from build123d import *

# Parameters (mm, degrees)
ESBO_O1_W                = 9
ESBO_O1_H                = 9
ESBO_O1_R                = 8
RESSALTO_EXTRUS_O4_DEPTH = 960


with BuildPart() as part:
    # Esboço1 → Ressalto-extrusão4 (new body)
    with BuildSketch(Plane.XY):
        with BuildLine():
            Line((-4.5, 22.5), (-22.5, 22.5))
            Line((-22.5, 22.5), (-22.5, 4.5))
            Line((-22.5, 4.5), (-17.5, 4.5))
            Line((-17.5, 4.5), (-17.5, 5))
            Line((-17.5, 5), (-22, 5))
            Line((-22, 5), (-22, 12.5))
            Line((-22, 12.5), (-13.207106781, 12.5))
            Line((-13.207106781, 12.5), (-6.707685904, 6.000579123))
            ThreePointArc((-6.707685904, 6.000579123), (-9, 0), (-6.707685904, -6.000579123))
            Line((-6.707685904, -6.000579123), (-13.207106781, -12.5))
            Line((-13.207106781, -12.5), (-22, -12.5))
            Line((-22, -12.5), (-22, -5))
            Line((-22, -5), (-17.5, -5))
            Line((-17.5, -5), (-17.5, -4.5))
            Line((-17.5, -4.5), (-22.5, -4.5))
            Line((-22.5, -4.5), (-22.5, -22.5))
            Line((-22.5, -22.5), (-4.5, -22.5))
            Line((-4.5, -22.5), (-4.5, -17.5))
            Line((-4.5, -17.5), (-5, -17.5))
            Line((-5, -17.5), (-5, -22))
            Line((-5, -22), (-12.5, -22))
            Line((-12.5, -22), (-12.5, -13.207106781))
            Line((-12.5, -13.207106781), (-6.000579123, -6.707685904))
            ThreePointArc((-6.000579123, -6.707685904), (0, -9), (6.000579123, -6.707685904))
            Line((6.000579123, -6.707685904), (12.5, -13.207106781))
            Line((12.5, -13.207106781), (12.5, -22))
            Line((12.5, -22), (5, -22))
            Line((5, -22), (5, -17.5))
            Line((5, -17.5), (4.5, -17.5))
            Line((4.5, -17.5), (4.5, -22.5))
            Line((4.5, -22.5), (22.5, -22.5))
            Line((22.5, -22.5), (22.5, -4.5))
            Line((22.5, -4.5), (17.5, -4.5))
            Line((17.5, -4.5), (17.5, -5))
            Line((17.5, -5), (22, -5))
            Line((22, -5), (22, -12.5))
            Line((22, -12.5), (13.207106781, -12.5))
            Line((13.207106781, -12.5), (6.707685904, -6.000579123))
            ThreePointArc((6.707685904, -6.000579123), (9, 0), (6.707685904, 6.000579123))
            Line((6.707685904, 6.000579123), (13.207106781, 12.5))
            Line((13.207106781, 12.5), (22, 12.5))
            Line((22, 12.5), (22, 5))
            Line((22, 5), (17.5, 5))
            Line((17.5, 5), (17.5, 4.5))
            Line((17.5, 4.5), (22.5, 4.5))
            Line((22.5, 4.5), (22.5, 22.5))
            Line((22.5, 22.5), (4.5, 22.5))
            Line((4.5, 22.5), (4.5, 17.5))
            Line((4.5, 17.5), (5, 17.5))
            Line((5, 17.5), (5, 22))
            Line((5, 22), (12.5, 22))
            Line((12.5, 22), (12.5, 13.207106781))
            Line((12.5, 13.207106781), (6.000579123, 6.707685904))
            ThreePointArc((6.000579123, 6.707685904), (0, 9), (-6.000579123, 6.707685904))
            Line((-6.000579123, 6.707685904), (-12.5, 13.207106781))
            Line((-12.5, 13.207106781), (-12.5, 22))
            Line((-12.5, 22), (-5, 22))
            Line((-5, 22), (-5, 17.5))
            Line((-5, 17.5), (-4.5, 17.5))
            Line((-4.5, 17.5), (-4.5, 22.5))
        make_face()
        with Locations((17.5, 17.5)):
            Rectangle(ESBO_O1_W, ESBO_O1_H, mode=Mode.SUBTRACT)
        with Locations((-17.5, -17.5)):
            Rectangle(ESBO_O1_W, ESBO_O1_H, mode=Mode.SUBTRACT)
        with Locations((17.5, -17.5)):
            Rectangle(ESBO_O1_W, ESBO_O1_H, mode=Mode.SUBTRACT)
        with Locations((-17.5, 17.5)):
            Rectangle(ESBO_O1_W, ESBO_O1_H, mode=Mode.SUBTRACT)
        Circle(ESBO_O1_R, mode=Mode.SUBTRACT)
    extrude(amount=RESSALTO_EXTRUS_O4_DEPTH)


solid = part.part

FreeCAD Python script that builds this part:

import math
import FreeCAD as App
import Part
import Sketcher

V = App.Vector
Q = App.Units.Quantity


def add_polygon(sketch, points):
    """Adds a closed chain of lines whose ends are joined by coincident constraints."""
    first, n = sketch.GeometryCount, len(points)
    for a, b in zip(points, points[1:] + points[:1]):
        sketch.addGeometry(Part.LineSegment(App.Vector(*a, 0), App.Vector(*b, 0)), False)
    for i in range(n):
        sketch.addConstraint(Sketcher.Constraint("Coincident", first + i, 2, first + (i + 1) % n, 1))

doc = App.newDocument("Part")
params = doc.addObject("Spreadsheet::Sheet", "Params")
for row, (alias, value) in enumerate([
    ("sketch1_diameter", "16 mm"),
    ("sketch1_radius", "9 mm"),
    ("sketch1_width", "18 mm"),
    ("sketch1_width2", "5 mm"),
    ("sketch1_width3", "9 mm"),
    ("pad1_length", "960 mm"),
], start=1):
    params.set(f"A{row}", alias)
    params.set(f"B{row}", "=" + value)
    params.setAlias(f"B{row}", alias)

body = doc.addObject("PartDesign::Body", "Body")

# Sketch on XY plane
sketch1 = body.newObject("Sketcher::SketchObject", "Sketch")
sketch1.AttachmentSupport = (doc.getObject("XY_Plane"), [""])
sketch1.MapMode = "FlatFace"
sketch1.addGeometry(Part.LineSegment(V(-4.5, 22.5, 0), V(-22.5, 22.5, 0)), False)  # 0
sketch1.addGeometry(Part.LineSegment(V(-22.5, 22.5, 0), V(-22.5, 4.5, 0)), False)  # 1
sketch1.addGeometry(Part.LineSegment(V(-22.5, 4.5, 0), V(-17.5, 4.5, 0)), False)  # 2
sketch1.addGeometry(Part.LineSegment(V(-17.5, 4.5, 0), V(-17.5, 5, 0)), False)  # 3
sketch1.addGeometry(Part.LineSegment(V(-17.5, 5, 0), V(-22, 5, 0)), False)  # 4
sketch1.addGeometry(Part.LineSegment(V(-22, 5, 0), V(-22, 12.5, 0)), False)  # 5
sketch1.addGeometry(Part.LineSegment(V(-22, 12.5, 0), V(-13.207107, 12.5, 0)), False)  # 6
sketch1.addGeometry(Part.LineSegment(V(-13.207107, 12.5, 0), V(-6.707686, 6.000579, 0)), False)  # 7
sketch1.addGeometry(Part.ArcOfCircle(Part.Circle(V(0, 0, 0), V(0, 0, 1), 9), math.radians(138.184739), math.radians(221.815261)), False)  # 8
sketch1.addGeometry(Part.LineSegment(V(-6.707686, -6.000579, 0), V(-13.207107, -12.5, 0)), False)  # 9
sketch1.addGeometry(Part.LineSegment(V(-13.207107, -12.5, 0), V(-22, -12.5, 0)), False)  # 10
sketch1.addGeometry(Part.LineSegment(V(-22, -12.5, 0), V(-22, -5, 0)), False)  # 11
sketch1.addGeometry(Part.LineSegment(V(-22, -5, 0), V(-17.5, -5, 0)), False)  # 12
sketch1.addGeometry(Part.LineSegment(V(-17.5, -5, 0), V(-17.5, -4.5, 0)), False)  # 13
sketch1.addGeometry(Part.LineSegment(V(-17.5, -4.5, 0), V(-22.5, -4.5, 0)), False)  # 14
sketch1.addGeometry(Part.LineSegment(V(-22.5, -4.5, 0), V(-22.5, -22.5, 0)), False)  # 15
sketch1.addGeometry(Part.LineSegment(V(-22.5, -22.5, 0), V(-4.5, -22.5, 0)), False)  # 16
sketch1.addGeometry(Part.LineSegment(V(-4.5, -22.5, 0), V(-4.5, -17.5, 0)), False)  # 17
sketch1.addGeometry(Part.LineSegment(V(-4.5, -17.5, 0), V(-5, -17.5, 0)), False)  # 18
sketch1.addGeometry(Part.LineSegment(V(-5, -17.5, 0), V(-5, -22, 0)), False)  # 19
sketch1.addGeometry(Part.LineSegment(V(-5, -22, 0), V(-12.5, -22, 0)), False)  # 20
sketch1.addGeometry(Part.LineSegment(V(-12.5, -22, 0), V(-12.5, -13.207107, 0)), False)  # 21
sketch1.addGeometry(Part.LineSegment(V(-12.5, -13.207107, 0), V(-6.000579, -6.707686, 0)), False)  # 22
sketch1.addGeometry(Part.ArcOfCircle(Part.Circle(V(0, 0, 0), V(0, 0, 1), 9), math.radians(-131.815261), math.radians(-48.184739)), False)  # 23
sketch1.addGeometry(Part.LineSegment(V(6.000579, -6.707686, 0), V(12.5, -13.207107, 0)), False)  # 24
sketch1.addGeometry(Part.LineSegment(V(12.5, -13.207107, 0), V(12.5, -22, 0)), False)  # 25
sketch1.addGeometry(Part.LineSegment(V(12.5, -22, 0), V(5, -22, 0)), False)  # 26
sketch1.addGeometry(Part.LineSegment(V(5, -22, 0), V(5, -17.5, 0)), False)  # 27
sketch1.addGeometry(Part.LineSegment(V(5, -17.5, 0), V(4.5, -17.5, 0)), False)  # 28
sketch1.addGeometry(Part.LineSegment(V(4.5, -17.5, 0), V(4.5, -22.5, 0)), False)  # 29
sketch1.addGeometry(Part.LineSegment(V(4.5, -22.5, 0), V(22.5, -22.5, 0)), False)  # 30
sketch1.addGeometry(Part.LineSegment(V(22.5, -22.5, 0), V(22.5, -4.5, 0)), False)  # 31
sketch1.addGeometry(Part.LineSegment(V(22.5, -4.5, 0), V(17.5, -4.5, 0)), False)  # 32
sketch1.addGeometry(Part.LineSegment(V(17.5, -4.5, 0), V(17.5, -5, 0)), False)  # 33
sketch1.addGeometry(Part.LineSegment(V(17.5, -5, 0), V(22, -5, 0)), False)  # 34
sketch1.addGeometry(Part.LineSegment(V(22, -5, 0), V(22, -12.5, 0)), False)  # 35
sketch1.addGeometry(Part.LineSegment(V(22, -12.5, 0), V(13.207107, -12.5, 0)), False)  # 36
sketch1.addGeometry(Part.LineSegment(V(13.207107, -12.5, 0), V(6.707686, -6.000579, 0)), False)  # 37
sketch1.addGeometry(Part.ArcOfCircle(Part.Circle(V(0, 0, 0), V(0, 0, 1), 9), math.radians(-41.815261), math.radians(41.815261)), False)  # 38
sketch1.addGeometry(Part.LineSegment(V(6.707686, 6.000579, 0), V(13.207107, 12.5, 0)), False)  # 39
sketch1.addGeometry(Part.LineSegment(V(13.207107, 12.5, 0), V(22, 12.5, 0)), False)  # 40
sketch1.addGeometry(Part.LineSegment(V(22, 12.5, 0), V(22, 5, 0)), False)  # 41
sketch1.addGeometry(Part.LineSegment(V(22, 5, 0), V(17.5, 5, 0)), False)  # 42
sketch1.addGeometry(Part.LineSegment(V(17.5, 5, 0), V(17.5, 4.5, 0)), False)  # 43
sketch1.addGeometry(Part.LineSegment(V(17.5, 4.5, 0), V(22.5, 4.5, 0)), False)  # 44
sketch1.addGeometry(Part.LineSegment(V(22.5, 4.5, 0), V(22.5, 22.5, 0)), False)  # 45
sketch1.addGeometry(Part.LineSegment(V(22.5, 22.5, 0), V(4.5, 22.5, 0)), False)  # 46
sketch1.addGeometry(Part.LineSegment(V(4.5, 22.5, 0), V(4.5, 17.5, 0)), False)  # 47
sketch1.addGeometry(Part.LineSegment(V(4.5, 17.5, 0), V(5, 17.5, 0)), False)  # 48
sketch1.addGeometry(Part.LineSegment(V(5, 17.5, 0), V(5, 22, 0)), False)  # 49
sketch1.addGeometry(Part.LineSegment(V(5, 22, 0), V(12.5, 22, 0)), False)  # 50
sketch1.addGeometry(Part.LineSegment(V(12.5, 22, 0), V(12.5, 13.207107, 0)), False)  # 51
sketch1.addGeometry(Part.LineSegment(V(12.5, 13.207107, 0), V(6.000579, 6.707686, 0)), False)  # 52
sketch1.addGeometry(Part.ArcOfCircle(Part.Circle(V(0, 0, 0), V(0, 0, 1), 9), math.radians(48.184739), math.radians(131.815261)), False)  # 53
sketch1.addGeometry(Part.LineSegment(V(-6.000579, 6.707686, 0), V(-12.5, 13.207107, 0)), False)  # 54
sketch1.addGeometry(Part.LineSegment(V(-12.5, 13.207107, 0), V(-12.5, 22, 0)), False)  # 55
sketch1.addGeometry(Part.LineSegment(V(-12.5, 22, 0), V(-5, 22, 0)), False)  # 56
sketch1.addGeometry(Part.LineSegment(V(-5, 22, 0), V(-5, 17.5, 0)), False)  # 57
sketch1.addGeometry(Part.LineSegment(V(-5, 17.5, 0), V(-4.5, 17.5, 0)), False)  # 58
sketch1.addGeometry(Part.LineSegment(V(-4.5, 17.5, 0), V(-4.5, 22.5, 0)), False)  # 59
add_polygon(sketch1, [(-13, -22), (-22, -22), (-22, -13), (-13, -13)])  # lines 60-63
add_polygon(sketch1, [(22, -22), (13, -22), (13, -13), (22, -13)])  # lines 64-67
add_polygon(sketch1, [(-13, 13), (-22, 13), (-22, 22), (-13, 22)])  # lines 68-71
sketch1.addGeometry(Part.Circle(V(0, 0, 0), V(0, 0, 1), 8), False)  # 72
add_polygon(sketch1, [(22, 13), (13, 13), (13, 22), (22, 22)])  # lines 73-76
sketch1.addConstraint(Sketcher.Constraint("Coincident", 0, 2, 1, 1))
sketch1.addConstraint(Sketcher.Constraint("Coincident", 1, 2, 2, 1))
sketch1.addConstraint(Sketcher.Constraint("Coincident", 2, 2, 3, 1))
sketch1.addConstraint(Sketcher.Constraint("Coincident", 3, 2, 4, 1))
sketch1.addConstraint(Sketcher.Constraint("Coincident", 4, 2, 5, 1))
sketch1.addConstraint(Sketcher.Constraint("Coincident", 5, 2, 6, 1))
sketch1.addConstraint(Sketcher.Constraint("Coincident", 6, 2, 7, 1))
sketch1.addConstraint(Sketcher.Constraint("Coincident", 7, 2, 8, 1))
sketch1.addConstraint(Sketcher.Constraint("Coincident", 8, 2, 9, 1))
sketch1.addConstraint(Sketcher.Constraint("Coincident", 9, 2, 10, 1))
sketch1.addConstraint(Sketcher.Constraint("Coincident", 10, 2, 11, 1))
sketch1.addConstraint(Sketcher.Constraint("Coincident", 11, 2, 12, 1))
sketch1.addConstraint(Sketcher.Constraint("Coincident", 12, 2, 13, 1))
sketch1.addConstraint(Sketcher.Constraint("Coincident", 13, 2, 14, 1))
sketch1.addConstraint(Sketcher.Constraint("Coincident", 14, 2, 15, 1))
sketch1.addConstraint(Sketcher.Constraint("Coincident", 15, 2, 16, 1))
sketch1.addConstraint(Sketcher.Constraint("Coincident", 16, 2, 17, 1))
sketch1.addConstraint(Sketcher.Constraint("Coincident", 17, 2, 18, 1))
sketch1.addConstraint(Sketcher.Constraint("Coincident", 18, 2, 19, 1))
sketch1.addConstraint(Sketcher.Constraint("Coincident", 19, 2, 20, 1))
sketch1.addConstraint(Sketcher.Constraint("Coincident", 20, 2, 21, 1))
sketch1.addConstraint(Sketcher.Constraint("Coincident", 21, 2, 22, 1))
sketch1.addConstraint(Sketcher.Constraint("Coincident", 22, 2, 23, 1))
sketch1.addConstraint(Sketcher.Constraint("Coincident", 23, 2, 24, 1))
sketch1.addConstraint(Sketcher.Constraint("Coincident", 24, 2, 25, 1))
sketch1.addConstraint(Sketcher.Constraint("Coincident", 25, 2, 26, 1))
sketch1.addConstraint(Sketcher.Constraint("Coincident", 26, 2, 27, 1))
sketch1.addConstraint(Sketcher.Constraint("Coincident", 27, 2, 28, 1))
sketch1.addConstraint(Sketcher.Constraint("Coincident", 28, 2, 29, 1))
sketch1.addConstraint(Sketcher.Constraint("Coincident", 29, 2, 30, 1))
sketch1.addConstraint(Sketcher.Constraint("Coincident", 30, 2, 31, 1))
sketch1.addConstraint(Sketcher.Constraint("Coincident", 31, 2, 32, 1))
sketch1.addConstraint(Sketcher.Constraint("Coincident", 32, 2, 33, 1))
sketch1.addConstraint(Sketcher.Constraint("Coincident", 33, 2, 34, 1))
sketch1.addConstraint(Sketcher.Constraint("Coincident", 34, 2, 35, 1))
sketch1.addConstraint(Sketcher.Constraint("Coincident", 35, 2, 36, 1))
sketch1.addConstraint(Sketcher.Constraint("Coincident", 36, 2, 37, 1))
sketch1.addConstraint(Sketcher.Constraint("Coincident", 37, 2, 38, 1))
sketch1.addConstraint(Sketcher.Constraint("Coincident", 38, 2, 39, 1))
sketch1.addConstraint(Sketcher.Constraint("Coincident", 39, 2, 40, 1))
sketch1.addConstraint(Sketcher.Constraint("Coincident", 40, 2, 41, 1))
sketch1.addConstraint(Sketcher.Constraint("Coincident", 41, 2, 42, 1))
sketch1.addConstraint(Sketcher.Constraint("Coincident", 42, 2, 43, 1))
sketch1.addConstraint(Sketcher.Constraint("Coincident", 43, 2, 44, 1))
sketch1.addConstraint(Sketcher.Constraint("Coincident", 44, 2, 45, 1))
sketch1.addConstraint(Sketcher.Constraint("Coincident", 45, 2, 46, 1))
sketch1.addConstraint(Sketcher.Constraint("Coincident", 46, 2, 47, 1))
sketch1.addConstraint(Sketcher.Constraint("Coincident", 47, 2, 48, 1))
sketch1.addConstraint(Sketcher.Constraint("Coincident", 48, 2, 49, 1))
sketch1.addConstraint(Sketcher.Constraint("Coincident", 49, 2, 50, 1))
sketch1.addConstraint(Sketcher.Constraint("Coincident", 50, 2, 51, 1))
sketch1.addConstraint(Sketcher.Constraint("Coincident", 51, 2, 52, 1))
sketch1.addConstraint(Sketcher.Constraint("Coincident", 52, 2, 53, 1))
sketch1.addConstraint(Sketcher.Constraint("Coincident", 53, 2, 54, 1))
sketch1.addConstraint(Sketcher.Constraint("Coincident", 54, 2, 55, 1))
sketch1.addConstraint(Sketcher.Constraint("Coincident", 55, 2, 56, 1))
sketch1.addConstraint(Sketcher.Constraint("Coincident", 56, 2, 57, 1))
sketch1.addConstraint(Sketcher.Constraint("Coincident", 57, 2, 58, 1))
sketch1.addConstraint(Sketcher.Constraint("Coincident", 58, 2, 59, 1))
sketch1.addConstraint(Sketcher.Constraint("Coincident", 59, 2, 0, 1))
sketch1.addConstraint(Sketcher.Constraint("Horizontal", 0))
sketch1.addConstraint(Sketcher.Constraint("Vertical", 1))
sketch1.addConstraint(Sketcher.Constraint("Horizontal", 2))
sketch1.addConstraint(Sketcher.Constraint("Vertical", 3))
sketch1.addConstraint(Sketcher.Constraint("Horizontal", 4))
sketch1.addConstraint(Sketcher.Constraint("Vertical", 5))
sketch1.addConstraint(Sketcher.Constraint("Horizontal", 6))
sketch1.addConstraint(Sketcher.Constraint("Horizontal", 10))
sketch1.addConstraint(Sketcher.Constraint("Vertical", 11))
sketch1.addConstraint(Sketcher.Constraint("Horizontal", 12))
sketch1.addConstraint(Sketcher.Constraint("Vertical", 13))
sketch1.addConstraint(Sketcher.Constraint("Horizontal", 14))
sketch1.addConstraint(Sketcher.Constraint("Vertical", 15))
sketch1.addConstraint(Sketcher.Constraint("Horizontal", 16))
sketch1.addConstraint(Sketcher.Constraint("Vertical", 17))
sketch1.addConstraint(Sketcher.Constraint("Horizontal", 18))
sketch1.addConstraint(Sketcher.Constraint("Vertical", 19))
sketch1.addConstraint(Sketcher.Constraint("Horizontal", 20))
sketch1.addConstraint(Sketcher.Constraint("Vertical", 21))
sketch1.addConstraint(Sketcher.Constraint("Vertical", 25))
sketch1.addConstraint(Sketcher.Constraint("Horizontal", 26))
sketch1.addConstraint(Sketcher.Constraint("Vertical", 27))
sketch1.addConstraint(Sketcher.Constraint("Horizontal", 28))
sketch1.addConstraint(Sketcher.Constraint("Vertical", 29))
sketch1.addConstraint(Sketcher.Constraint("Horizontal", 30))
sketch1.addConstraint(Sketcher.Constraint("Vertical", 31))
sketch1.addConstraint(Sketcher.Constraint("Horizontal", 32))
sketch1.addConstraint(Sketcher.Constraint("Vertical", 33))
sketch1.addConstraint(Sketcher.Constraint("Horizontal", 34))
sketch1.addConstraint(Sketcher.Constraint("Vertical", 35))
sketch1.addConstraint(Sketcher.Constraint("Horizontal", 36))
sketch1.addConstraint(Sketcher.Constraint("Horizontal", 40))
sketch1.addConstraint(Sketcher.Constraint("Vertical", 41))
sketch1.addConstraint(Sketcher.Constraint("Horizontal", 42))
sketch1.addConstraint(Sketcher.Constraint("Vertical", 43))
sketch1.addConstraint(Sketcher.Constraint("Horizontal", 44))
sketch1.addConstraint(Sketcher.Constraint("Vertical", 45))
sketch1.addConstraint(Sketcher.Constraint("Horizontal", 46))
sketch1.addConstraint(Sketcher.Constraint("Vertical", 47))
sketch1.addConstraint(Sketcher.Constraint("Horizontal", 48))
sketch1.addConstraint(Sketcher.Constraint("Vertical", 49))
sketch1.addConstraint(Sketcher.Constraint("Horizontal", 50))
sketch1.addConstraint(Sketcher.Constraint("Vertical", 51))
sketch1.addConstraint(Sketcher.Constraint("Vertical", 55))
sketch1.addConstraint(Sketcher.Constraint("Horizontal", 56))
sketch1.addConstraint(Sketcher.Constraint("Vertical", 57))
sketch1.addConstraint(Sketcher.Constraint("Horizontal", 58))
sketch1.addConstraint(Sketcher.Constraint("Vertical", 59))
sketch1.addConstraint(Sketcher.Constraint("Horizontal", 60))
sketch1.addConstraint(Sketcher.Constraint("Vertical", 61))
sketch1.addConstraint(Sketcher.Constraint("Horizontal", 62))
sketch1.addConstraint(Sketcher.Constraint("Vertical", 63))
sketch1.addConstraint(Sketcher.Constraint("Horizontal", 64))
sketch1.addConstraint(Sketcher.Constraint("Vertical", 65))
sketch1.addConstraint(Sketcher.Constraint("Horizontal", 66))
sketch1.addConstraint(Sketcher.Constraint("Vertical", 67))
sketch1.addConstraint(Sketcher.Constraint("Horizontal", 68))
sketch1.addConstraint(Sketcher.Constraint("Vertical", 69))
sketch1.addConstraint(Sketcher.Constraint("Horizontal", 70))
sketch1.addConstraint(Sketcher.Constraint("Vertical", 71))
sketch1.addConstraint(Sketcher.Constraint("Horizontal", 73))
sketch1.addConstraint(Sketcher.Constraint("Vertical", 74))
sketch1.addConstraint(Sketcher.Constraint("Horizontal", 75))
sketch1.addConstraint(Sketcher.Constraint("Vertical", 76))
sketch1.addConstraint(Sketcher.Constraint("Coincident", 8, 3, -1, 1))
sketch1.addConstraint(Sketcher.Constraint("Coincident", 23, 3, -1, 1))
sketch1.addConstraint(Sketcher.Constraint("Coincident", 38, 3, -1, 1))
sketch1.addConstraint(Sketcher.Constraint("Coincident", 53, 3, -1, 1))
sketch1.addConstraint(Sketcher.Constraint("Coincident", 72, 3, -1, 1))
sketch1.addConstraint(Sketcher.Constraint("Equal", 8, 23))
sketch1.addConstraint(Sketcher.Constraint("Equal", 23, 38))
sketch1.addConstraint(Sketcher.Constraint("Equal", 38, 53))
sketch1.addConstraint(Sketcher.Constraint("Symmetric", 0, 2, 30, 2, -1, 1))
sketch1.addConstraint(Sketcher.Constraint("Symmetric", 2, 2, 32, 2, -1, 1))
sketch1.addConstraint(Sketcher.Constraint("Symmetric", 4, 2, 34, 2, -1, 1))
sketch1.addConstraint(Sketcher.Constraint("Symmetric", 6, 2, 36, 2, -1, 1))
sketch1.addConstraint(Sketcher.Constraint("Symmetric", 9, 2, 39, 2, -1, 1))
sketch1.addConstraint(Sketcher.Constraint("Symmetric", 11, 2, 41, 2, -1, 1))
sketch1.addConstraint(Sketcher.Constraint("Symmetric", 13, 2, 43, 2, -1, 1))
sketch1.addConstraint(Sketcher.Constraint("Symmetric", 15, 2, 45, 2, -1, 1))
sketch1.addConstraint(Sketcher.Constraint("Symmetric", 17, 2, 47, 2, -1, 1))
sketch1.addConstraint(Sketcher.Constraint("Symmetric", 19, 2, 49, 2, -1, 1))
sketch1.addConstraint(Sketcher.Constraint("Symmetric", 21, 2, 51, 2, -1, 1))
sketch1.addConstraint(Sketcher.Constraint("Symmetric", 24, 2, 54, 2, -1, 1))
sketch1.addConstraint(Sketcher.Constraint("Symmetric", 26, 2, 56, 2, -1, 1))
sketch1.addConstraint(Sketcher.Constraint("Symmetric", 28, 2, 58, 2, -1, 1))
sketch1.addConstraint(Sketcher.Constraint("Symmetric", 66, 2, 68, 2, -1, 1))
sketch1.addConstraint(Sketcher.Constraint("Symmetric", 64, 2, 70, 2, -1, 1))
sketch1.addConstraint(Sketcher.Constraint("Symmetric", 62, 2, 73, 2, -1, 1))
sketch1.addConstraint(Sketcher.Constraint("Symmetric", 60, 2, 75, 2, -1, 1))
sketch1.addConstraint(Sketcher.Constraint("Symmetric", 21, 2, 24, 2, -2))
sketch1.addConstraint(Sketcher.Constraint("Symmetric", 19, 2, 26, 2, -2))
sketch1.addConstraint(Sketcher.Constraint("Symmetric", 17, 2, 28, 2, -2))
sketch1.addConstraint(Sketcher.Constraint("Symmetric", 15, 2, 30, 2, -2))
sketch1.addConstraint(Sketcher.Constraint("Symmetric", 13, 2, 32, 2, -2))
sketch1.addConstraint(Sketcher.Constraint("Symmetric", 11, 2, 34, 2, -2))
sketch1.addConstraint(Sketcher.Constraint("Symmetric", 9, 2, 36, 2, -2))
sketch1.addConstraint(Sketcher.Constraint("Symmetric", 63, 2, 64, 2, -2))
sketch1.addConstraint(Sketcher.Constraint("Symmetric", 61, 2, 66, 2, -2))
sketch1.addConstraint(Sketcher.Constraint("Perpendicular", 7, 9))
sketch1.addConstraint(Sketcher.Constraint("Parallel", 9, 22))
sketch1.addConstraint(Sketcher.Constraint("Perpendicular", 22, 24))
sketch1.addConstraint(Sketcher.Constraint("Parallel", 24, 37))
sketch1.addConstraint(Sketcher.Constraint("Perpendicular", 37, 39))
sketch1.addConstraint(Sketcher.Constraint("Parallel", 39, 52))
sketch1.addConstraint(Sketcher.Constraint("Perpendicular", 52, 54))
sketch1.addConstraint(Sketcher.Constraint("Horizontal", 22, 2, 23, 2))
sketch1.addConstraint(Sketcher.Constraint("Horizontal", 26, 2, 60, 2))
sketch1.addConstraint(Sketcher.Constraint("Vertical", 11, 2, 60, 2))
sketch1.addConstraint(Sketcher.Constraint("Equal", 46, 1))
sketch1.addConstraint(Sketcher.Constraint("Equal", 58, 3))
sketch1.addConstraint(Sketcher.Constraint("Equal", 56, 5))
sketch1.addConstraint(Sketcher.Constraint("Equal", 44, 17))
sketch1.addConstraint(Sketcher.Constraint("Equal", 42, 19))
sketch1.addConstraint(Sketcher.Constraint("Equal", 40, 21))
sketch1.addConstraint(Sketcher.Constraint("Equal", 75, 61))
sketch1.addConstraint(Sketcher.Constraint("Equal", 9, 22))
sketch1.addConstraint(Sketcher.Constraint("Diameter", 72, Q("16 mm")))
sketch1.addConstraint(Sketcher.Constraint("Radius", 8, Q("9 mm")))
sketch1.addConstraint(Sketcher.Constraint("DistanceX", 0, 2, 0, 1, Q("18 mm")))
sketch1.addConstraint(Sketcher.Constraint("DistanceX", 2, 1, 2, 2, Q("5 mm")))
sketch1.addConstraint(Sketcher.Constraint("DistanceX", 60, 2, 60, 1, Q("9 mm")))
sketch1.addConstraint(Sketcher.Constraint("DistanceX", 4, 2, 4, 1, Q("4.5 mm")))
sketch1.addConstraint(Sketcher.Constraint("DistanceX", 18, 2, 18, 1, Q("0.5 mm")))
sketch1.addConstraint(Sketcher.Constraint("DistanceX", 20, 2, 20, 1, Q("7.5 mm")))
sketch1.addConstraint(Sketcher.Constraint("DistanceY", -1, 1, 3, 2, Q("5 mm")))
sketch1.addConstraint(Sketcher.Constraint("Distance", 7, Q("9.191569 mm")))
sketch1.setExpression("Constraints[193]", "Params.sketch1_diameter")
sketch1.setExpression("Constraints[194]", "Params.sketch1_radius")
sketch1.setExpression("Constraints[195]", "Params.sketch1_width")
sketch1.setExpression("Constraints[196]", "Params.sketch1_width2")
sketch1.setExpression("Constraints[197]", "Params.sketch1_width3")
pad1 = body.newObject("PartDesign::Pad", "Pad")
pad1.Profile = sketch1
pad1.setExpression("Length", "Params.pad1_length")

doc.recompute()
